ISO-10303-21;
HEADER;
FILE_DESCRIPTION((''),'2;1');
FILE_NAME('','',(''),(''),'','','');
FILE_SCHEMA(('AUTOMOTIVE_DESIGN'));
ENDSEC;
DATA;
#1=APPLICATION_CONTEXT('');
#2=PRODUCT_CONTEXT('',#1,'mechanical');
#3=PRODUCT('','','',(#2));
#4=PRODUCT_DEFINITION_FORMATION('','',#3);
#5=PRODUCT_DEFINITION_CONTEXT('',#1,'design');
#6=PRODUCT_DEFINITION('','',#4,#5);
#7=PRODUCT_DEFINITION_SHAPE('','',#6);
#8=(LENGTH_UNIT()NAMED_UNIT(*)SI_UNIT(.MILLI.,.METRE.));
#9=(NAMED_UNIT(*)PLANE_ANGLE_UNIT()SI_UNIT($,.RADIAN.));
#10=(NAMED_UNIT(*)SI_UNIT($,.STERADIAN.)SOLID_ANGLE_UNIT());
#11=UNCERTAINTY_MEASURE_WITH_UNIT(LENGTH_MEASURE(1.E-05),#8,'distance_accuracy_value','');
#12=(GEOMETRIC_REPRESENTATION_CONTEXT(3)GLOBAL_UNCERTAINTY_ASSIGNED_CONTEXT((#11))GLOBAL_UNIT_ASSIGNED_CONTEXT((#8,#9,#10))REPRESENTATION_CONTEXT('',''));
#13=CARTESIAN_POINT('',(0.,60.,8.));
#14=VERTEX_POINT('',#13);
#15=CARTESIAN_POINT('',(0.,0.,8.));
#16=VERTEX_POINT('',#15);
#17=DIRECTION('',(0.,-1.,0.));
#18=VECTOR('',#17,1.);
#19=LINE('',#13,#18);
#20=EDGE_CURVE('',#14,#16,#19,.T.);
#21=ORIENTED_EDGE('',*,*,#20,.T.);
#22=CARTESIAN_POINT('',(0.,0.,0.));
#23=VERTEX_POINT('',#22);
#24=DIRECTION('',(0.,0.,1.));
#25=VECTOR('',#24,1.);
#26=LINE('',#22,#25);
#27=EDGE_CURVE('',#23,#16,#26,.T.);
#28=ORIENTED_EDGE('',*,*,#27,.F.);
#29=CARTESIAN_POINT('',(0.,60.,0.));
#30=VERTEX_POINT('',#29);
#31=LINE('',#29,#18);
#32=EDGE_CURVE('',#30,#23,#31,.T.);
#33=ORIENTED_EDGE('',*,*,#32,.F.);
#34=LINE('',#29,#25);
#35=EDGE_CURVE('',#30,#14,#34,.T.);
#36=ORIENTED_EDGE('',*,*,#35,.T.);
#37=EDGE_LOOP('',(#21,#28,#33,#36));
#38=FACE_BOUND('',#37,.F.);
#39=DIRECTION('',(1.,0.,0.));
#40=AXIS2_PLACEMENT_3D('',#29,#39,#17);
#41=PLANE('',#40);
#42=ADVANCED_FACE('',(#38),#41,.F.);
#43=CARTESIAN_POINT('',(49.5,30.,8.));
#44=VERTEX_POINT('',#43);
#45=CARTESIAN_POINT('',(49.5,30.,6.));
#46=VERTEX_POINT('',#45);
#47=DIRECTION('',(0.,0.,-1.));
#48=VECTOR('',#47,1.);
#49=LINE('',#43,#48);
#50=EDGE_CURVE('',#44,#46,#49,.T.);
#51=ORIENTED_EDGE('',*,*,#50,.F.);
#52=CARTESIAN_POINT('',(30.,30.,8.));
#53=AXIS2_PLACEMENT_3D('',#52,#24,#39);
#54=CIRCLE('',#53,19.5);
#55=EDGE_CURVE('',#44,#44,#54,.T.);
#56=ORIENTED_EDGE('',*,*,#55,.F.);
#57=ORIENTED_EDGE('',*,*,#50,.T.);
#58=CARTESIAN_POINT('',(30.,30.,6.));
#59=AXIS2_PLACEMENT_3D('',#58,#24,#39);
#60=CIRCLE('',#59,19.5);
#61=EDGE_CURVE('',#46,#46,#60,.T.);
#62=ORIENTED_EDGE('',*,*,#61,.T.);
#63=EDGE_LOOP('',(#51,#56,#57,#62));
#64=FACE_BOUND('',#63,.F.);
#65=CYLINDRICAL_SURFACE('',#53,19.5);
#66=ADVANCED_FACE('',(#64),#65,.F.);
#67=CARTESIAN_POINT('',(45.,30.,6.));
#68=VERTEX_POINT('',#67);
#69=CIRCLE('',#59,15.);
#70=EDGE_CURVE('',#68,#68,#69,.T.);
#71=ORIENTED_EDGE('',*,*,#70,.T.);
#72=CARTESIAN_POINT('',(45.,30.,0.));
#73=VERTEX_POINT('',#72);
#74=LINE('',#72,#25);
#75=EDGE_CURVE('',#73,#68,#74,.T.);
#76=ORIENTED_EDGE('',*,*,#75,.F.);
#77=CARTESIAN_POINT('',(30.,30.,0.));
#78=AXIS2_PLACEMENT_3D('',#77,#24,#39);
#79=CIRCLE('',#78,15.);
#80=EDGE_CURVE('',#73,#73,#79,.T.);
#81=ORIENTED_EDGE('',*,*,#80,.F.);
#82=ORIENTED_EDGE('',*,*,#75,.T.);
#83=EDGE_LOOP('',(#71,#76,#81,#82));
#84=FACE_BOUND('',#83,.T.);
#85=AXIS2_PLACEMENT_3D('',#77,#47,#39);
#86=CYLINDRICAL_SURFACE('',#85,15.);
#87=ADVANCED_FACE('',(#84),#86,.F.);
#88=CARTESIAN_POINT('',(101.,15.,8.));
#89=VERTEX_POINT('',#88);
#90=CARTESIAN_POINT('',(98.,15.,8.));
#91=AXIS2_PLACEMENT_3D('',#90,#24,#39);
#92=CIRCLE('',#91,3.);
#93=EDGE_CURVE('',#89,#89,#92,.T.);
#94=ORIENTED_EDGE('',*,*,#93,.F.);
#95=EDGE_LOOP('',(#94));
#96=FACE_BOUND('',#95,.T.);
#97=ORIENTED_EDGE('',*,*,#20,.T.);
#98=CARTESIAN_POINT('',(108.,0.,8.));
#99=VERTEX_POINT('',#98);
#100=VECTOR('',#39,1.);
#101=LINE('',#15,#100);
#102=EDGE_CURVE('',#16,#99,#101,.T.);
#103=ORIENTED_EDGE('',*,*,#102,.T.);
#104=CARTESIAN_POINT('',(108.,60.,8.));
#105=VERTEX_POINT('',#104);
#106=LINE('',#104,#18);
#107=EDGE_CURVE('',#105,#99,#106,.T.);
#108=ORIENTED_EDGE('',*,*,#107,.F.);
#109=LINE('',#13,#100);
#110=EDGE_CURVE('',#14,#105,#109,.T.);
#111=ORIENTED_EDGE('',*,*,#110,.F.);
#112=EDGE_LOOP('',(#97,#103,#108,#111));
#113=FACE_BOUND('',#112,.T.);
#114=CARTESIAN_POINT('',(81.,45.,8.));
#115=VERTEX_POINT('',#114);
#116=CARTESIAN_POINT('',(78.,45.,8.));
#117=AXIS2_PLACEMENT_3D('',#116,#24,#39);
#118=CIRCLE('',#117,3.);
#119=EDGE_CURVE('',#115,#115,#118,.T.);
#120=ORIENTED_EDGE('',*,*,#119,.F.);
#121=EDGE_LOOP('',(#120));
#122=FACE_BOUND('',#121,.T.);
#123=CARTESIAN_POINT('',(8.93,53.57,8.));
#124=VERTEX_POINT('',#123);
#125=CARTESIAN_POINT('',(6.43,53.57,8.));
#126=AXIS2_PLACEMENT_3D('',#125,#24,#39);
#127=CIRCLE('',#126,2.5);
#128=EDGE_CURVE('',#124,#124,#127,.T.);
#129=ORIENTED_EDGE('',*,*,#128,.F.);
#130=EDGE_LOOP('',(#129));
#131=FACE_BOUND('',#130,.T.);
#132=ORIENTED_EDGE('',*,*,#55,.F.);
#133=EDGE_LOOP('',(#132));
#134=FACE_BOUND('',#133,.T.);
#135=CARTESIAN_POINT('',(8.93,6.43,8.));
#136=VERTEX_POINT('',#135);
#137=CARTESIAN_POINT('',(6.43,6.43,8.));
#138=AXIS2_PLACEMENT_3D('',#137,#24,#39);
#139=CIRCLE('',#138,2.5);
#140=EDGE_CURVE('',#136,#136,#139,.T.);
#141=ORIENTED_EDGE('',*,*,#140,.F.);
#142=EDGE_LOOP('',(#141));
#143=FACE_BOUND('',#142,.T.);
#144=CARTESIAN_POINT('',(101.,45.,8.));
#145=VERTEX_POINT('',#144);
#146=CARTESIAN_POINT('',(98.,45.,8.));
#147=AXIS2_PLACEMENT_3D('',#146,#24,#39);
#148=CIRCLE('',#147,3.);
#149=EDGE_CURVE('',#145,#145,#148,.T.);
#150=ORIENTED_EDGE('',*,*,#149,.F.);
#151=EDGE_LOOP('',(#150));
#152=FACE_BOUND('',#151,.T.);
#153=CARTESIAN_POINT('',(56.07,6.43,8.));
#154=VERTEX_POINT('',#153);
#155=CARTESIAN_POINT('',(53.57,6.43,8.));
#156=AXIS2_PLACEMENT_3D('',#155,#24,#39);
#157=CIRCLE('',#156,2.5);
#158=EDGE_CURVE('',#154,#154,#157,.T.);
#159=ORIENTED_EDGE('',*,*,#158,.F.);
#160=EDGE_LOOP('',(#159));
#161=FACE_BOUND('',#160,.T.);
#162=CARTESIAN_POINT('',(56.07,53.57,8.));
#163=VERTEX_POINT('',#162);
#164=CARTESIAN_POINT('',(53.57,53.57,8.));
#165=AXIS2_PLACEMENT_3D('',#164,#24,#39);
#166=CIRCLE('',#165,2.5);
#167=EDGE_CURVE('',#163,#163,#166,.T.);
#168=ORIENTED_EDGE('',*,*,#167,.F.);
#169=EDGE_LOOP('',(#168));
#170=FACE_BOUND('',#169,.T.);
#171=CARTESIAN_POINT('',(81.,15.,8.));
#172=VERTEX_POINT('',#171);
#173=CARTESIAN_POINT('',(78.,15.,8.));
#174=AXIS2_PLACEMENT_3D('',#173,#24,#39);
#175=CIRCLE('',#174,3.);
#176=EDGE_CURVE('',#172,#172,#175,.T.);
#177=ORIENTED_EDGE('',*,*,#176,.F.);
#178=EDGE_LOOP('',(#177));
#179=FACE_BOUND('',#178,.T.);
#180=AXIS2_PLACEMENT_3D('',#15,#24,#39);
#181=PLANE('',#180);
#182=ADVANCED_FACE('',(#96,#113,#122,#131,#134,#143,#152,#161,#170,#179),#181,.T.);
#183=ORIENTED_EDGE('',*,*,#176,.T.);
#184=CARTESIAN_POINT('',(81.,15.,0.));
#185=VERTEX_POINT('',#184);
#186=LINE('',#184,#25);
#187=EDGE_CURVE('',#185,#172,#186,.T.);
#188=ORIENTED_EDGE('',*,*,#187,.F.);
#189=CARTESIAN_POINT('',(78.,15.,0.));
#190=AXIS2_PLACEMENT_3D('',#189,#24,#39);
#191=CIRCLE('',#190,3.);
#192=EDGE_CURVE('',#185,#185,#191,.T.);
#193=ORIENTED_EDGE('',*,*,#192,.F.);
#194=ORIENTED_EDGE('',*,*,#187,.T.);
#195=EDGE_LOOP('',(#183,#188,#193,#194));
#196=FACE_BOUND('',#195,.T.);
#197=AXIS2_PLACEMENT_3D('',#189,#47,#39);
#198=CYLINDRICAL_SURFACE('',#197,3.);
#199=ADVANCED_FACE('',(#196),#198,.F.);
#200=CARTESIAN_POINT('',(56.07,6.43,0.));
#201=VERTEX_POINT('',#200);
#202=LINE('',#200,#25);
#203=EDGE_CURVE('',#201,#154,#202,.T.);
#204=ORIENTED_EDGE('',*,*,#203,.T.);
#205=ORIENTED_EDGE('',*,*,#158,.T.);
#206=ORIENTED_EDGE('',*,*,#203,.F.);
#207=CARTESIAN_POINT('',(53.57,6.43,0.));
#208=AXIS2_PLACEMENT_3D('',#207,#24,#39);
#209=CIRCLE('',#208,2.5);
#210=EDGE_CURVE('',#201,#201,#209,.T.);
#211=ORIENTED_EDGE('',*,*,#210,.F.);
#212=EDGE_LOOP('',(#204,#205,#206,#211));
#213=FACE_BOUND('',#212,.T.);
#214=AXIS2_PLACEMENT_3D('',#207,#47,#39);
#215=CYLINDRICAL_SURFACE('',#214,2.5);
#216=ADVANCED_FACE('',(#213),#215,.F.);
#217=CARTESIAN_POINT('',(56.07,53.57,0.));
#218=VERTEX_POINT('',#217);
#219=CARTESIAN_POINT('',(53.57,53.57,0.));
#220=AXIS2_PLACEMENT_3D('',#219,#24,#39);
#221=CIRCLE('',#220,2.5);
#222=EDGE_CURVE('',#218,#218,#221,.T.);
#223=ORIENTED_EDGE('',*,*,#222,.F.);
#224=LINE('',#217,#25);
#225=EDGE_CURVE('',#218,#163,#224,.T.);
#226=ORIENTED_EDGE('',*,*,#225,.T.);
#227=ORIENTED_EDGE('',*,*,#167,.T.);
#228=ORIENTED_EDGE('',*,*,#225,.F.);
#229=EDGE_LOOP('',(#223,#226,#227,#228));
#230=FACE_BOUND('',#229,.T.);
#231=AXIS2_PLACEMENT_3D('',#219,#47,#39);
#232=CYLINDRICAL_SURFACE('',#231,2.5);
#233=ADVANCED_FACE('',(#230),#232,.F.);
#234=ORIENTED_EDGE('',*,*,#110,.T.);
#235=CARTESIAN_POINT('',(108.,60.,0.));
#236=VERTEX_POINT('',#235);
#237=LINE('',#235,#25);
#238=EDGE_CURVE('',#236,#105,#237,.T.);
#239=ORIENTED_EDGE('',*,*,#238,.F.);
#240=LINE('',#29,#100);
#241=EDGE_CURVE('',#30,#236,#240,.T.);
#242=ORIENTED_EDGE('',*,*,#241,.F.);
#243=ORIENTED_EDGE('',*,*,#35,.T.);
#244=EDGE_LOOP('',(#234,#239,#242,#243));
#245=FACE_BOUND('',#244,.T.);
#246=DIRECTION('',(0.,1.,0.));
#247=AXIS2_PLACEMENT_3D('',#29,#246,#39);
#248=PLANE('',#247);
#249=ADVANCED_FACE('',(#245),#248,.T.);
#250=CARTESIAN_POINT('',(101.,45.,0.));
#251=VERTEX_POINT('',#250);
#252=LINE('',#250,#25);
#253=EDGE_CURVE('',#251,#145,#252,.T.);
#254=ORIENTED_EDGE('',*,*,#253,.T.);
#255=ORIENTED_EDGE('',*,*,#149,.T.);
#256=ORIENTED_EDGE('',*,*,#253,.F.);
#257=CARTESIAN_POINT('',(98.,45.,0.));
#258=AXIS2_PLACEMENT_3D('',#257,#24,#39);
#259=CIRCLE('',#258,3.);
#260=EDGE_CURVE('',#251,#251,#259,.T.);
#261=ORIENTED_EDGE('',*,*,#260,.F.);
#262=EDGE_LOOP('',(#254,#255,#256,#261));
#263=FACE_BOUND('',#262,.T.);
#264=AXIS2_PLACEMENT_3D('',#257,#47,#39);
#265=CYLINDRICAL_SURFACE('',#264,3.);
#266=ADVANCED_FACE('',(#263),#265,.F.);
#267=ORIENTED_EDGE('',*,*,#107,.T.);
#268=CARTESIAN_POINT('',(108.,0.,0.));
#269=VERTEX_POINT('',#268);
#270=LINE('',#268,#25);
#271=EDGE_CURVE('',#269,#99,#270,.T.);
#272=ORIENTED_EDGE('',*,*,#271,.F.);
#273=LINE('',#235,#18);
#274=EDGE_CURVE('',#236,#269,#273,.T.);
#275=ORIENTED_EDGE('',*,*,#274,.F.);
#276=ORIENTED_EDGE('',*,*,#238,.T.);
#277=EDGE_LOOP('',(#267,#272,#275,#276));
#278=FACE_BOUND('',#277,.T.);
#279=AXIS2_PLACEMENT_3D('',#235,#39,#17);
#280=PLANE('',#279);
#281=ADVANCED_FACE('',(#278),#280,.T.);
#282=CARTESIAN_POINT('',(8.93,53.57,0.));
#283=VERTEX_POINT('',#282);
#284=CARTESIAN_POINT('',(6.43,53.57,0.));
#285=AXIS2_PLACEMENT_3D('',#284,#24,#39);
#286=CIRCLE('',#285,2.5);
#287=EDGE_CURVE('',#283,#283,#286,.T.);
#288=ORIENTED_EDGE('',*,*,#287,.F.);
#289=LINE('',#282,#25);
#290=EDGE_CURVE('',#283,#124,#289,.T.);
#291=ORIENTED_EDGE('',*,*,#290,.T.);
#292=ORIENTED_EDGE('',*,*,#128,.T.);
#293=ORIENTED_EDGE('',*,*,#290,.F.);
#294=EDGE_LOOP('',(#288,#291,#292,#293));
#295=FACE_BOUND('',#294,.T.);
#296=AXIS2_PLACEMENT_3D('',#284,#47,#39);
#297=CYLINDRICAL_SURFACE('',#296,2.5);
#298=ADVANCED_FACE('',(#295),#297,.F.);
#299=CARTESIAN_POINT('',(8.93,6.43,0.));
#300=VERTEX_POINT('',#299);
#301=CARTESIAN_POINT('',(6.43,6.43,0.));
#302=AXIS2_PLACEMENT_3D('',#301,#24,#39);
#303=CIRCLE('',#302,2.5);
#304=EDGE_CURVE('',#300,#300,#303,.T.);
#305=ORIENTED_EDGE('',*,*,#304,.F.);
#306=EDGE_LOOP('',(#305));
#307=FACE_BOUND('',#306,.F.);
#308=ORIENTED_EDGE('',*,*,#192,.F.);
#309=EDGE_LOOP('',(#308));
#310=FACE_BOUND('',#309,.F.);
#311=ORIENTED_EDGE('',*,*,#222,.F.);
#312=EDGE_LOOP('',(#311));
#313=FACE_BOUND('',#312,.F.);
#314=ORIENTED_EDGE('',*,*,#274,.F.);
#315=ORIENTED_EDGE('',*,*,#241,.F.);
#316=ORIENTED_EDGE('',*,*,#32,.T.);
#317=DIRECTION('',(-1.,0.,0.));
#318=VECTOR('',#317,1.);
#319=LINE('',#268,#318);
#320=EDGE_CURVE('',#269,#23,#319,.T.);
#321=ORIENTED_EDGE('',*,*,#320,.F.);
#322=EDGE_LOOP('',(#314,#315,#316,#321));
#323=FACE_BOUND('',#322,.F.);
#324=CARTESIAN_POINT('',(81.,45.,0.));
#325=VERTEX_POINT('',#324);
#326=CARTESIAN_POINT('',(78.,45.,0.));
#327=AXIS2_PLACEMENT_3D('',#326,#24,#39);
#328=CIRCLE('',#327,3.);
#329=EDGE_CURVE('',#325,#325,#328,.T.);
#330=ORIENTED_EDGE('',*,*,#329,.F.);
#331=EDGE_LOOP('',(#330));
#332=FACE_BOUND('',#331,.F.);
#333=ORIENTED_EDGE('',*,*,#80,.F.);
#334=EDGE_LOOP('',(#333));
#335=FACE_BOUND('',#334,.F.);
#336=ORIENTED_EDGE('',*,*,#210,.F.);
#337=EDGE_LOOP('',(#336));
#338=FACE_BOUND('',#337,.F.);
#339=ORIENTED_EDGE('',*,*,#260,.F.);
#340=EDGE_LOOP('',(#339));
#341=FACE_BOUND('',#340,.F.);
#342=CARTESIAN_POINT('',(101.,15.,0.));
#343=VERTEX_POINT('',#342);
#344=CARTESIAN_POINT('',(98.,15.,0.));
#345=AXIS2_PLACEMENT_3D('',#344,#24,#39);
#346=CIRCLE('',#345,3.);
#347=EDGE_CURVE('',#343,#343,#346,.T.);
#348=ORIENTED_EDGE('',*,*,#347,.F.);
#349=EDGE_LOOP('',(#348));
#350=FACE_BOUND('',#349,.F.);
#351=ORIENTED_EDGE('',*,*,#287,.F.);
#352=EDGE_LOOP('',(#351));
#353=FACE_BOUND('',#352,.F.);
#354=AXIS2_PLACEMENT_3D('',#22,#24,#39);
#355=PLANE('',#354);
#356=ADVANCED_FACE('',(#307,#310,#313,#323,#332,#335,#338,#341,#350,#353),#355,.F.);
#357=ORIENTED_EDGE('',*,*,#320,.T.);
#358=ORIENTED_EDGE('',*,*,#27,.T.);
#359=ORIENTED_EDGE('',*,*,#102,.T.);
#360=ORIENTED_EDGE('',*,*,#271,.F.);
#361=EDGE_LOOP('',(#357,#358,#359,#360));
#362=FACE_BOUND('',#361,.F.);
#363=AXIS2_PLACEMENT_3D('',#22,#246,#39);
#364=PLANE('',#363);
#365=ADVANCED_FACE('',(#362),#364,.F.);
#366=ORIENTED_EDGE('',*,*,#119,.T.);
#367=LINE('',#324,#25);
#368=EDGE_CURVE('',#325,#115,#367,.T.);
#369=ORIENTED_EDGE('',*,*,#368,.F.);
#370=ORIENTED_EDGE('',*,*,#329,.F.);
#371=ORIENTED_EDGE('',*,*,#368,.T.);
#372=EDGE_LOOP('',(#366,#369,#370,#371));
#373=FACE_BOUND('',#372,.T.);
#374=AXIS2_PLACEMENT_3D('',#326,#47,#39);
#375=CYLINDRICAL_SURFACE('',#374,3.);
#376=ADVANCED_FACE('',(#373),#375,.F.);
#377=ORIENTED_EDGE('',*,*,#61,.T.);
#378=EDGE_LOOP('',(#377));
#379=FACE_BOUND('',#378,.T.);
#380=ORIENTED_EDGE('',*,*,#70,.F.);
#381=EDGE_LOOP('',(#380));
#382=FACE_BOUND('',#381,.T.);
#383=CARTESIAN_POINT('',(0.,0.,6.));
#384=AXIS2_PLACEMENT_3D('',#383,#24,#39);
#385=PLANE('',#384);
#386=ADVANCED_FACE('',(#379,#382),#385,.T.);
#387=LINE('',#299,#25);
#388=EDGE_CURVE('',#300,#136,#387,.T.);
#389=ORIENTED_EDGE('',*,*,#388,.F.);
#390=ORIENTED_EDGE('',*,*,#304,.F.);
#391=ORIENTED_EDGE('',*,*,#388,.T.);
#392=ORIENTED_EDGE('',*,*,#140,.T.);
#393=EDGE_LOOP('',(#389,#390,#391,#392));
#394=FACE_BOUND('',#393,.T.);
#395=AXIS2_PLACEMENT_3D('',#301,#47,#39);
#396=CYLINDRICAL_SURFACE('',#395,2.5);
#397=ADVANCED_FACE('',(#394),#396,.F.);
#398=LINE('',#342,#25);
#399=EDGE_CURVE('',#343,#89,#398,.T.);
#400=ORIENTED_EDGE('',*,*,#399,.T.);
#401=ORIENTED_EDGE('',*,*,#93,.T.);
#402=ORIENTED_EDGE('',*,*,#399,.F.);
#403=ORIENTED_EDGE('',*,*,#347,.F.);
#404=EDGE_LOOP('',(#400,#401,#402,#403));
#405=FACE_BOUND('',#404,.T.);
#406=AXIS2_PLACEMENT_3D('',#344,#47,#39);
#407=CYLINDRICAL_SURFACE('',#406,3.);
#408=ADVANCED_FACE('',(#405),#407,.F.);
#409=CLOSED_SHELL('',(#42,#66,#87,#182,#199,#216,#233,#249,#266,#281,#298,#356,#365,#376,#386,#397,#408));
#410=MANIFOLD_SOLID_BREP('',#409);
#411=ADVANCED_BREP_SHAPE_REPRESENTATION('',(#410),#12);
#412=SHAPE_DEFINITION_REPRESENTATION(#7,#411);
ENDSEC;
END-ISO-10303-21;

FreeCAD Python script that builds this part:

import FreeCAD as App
import Part
import Sketcher
from FreeCAD import Vector
Q = App.Units.Quantity

doc = App.newDocument("Part")
params = doc.addObject("Spreadsheet::Sheet", "Params")
for row, (alias, value) in enumerate([
    ("sketch1_diameter", "30 mm"),
    ("sketch1_width", "108 mm"),
    ("sketch1_diameter2", "5 mm"),
    ("sketch1_diameter3", "6 mm"),
    ("pad1_length", "8 mm"),
    ("sketch2_diameter", "39 mm"),
    ("sketch2_diameter2", "30 mm"),
    ("pocket1_length", "2 mm"),
], start=1):
    params.set(f"A{row}", alias)
    params.set(f"B{row}", "=" + value)
    params.setAlias(f"B{row}", alias)

body = doc.addObject("PartDesign::Body", "Body")

# Sketch on XY plane
sketch1 = body.newObject("Sketcher::SketchObject", "Sketch")
sketch1.AttachmentSupport = (doc.getObject("XY_Plane"), [""])
sketch1.MapMode = "FlatFace"
sketch1.addGeometry([
    Part.LineSegment(Vector(108, 60, 0), Vector(0, 60, 0)),  # 0
    Part.LineSegment(Vector(0, 60, 0), Vector(0, 0, 0)),  # 1
    Part.LineSegment(Vector(0, 0, 0), Vector(108, 0, 0)),  # 2
    Part.LineSegment(Vector(108, 0, 0), Vector(108, 60, 0)),  # 3
    Part.Circle(Vector(6.4, 6.4, 0), Vector(0, 0, 1), 2.5),  # 4
    Part.Circle(Vector(53.6, 6.4, 0), Vector(0, 0, 1), 2.5),  # 5
    Part.Circle(Vector(78, 15, 0), Vector(0, 0, 1), 3),  # 6
    Part.Circle(Vector(98, 15, 0), Vector(0, 0, 1), 3),  # 7
    Part.Circle(Vector(30, 30, 0), Vector(0, 0, 1), 15),  # 8
    Part.Circle(Vector(6.4, 53.6, 0), Vector(0, 0, 1), 2.5),  # 9
    Part.Circle(Vector(53.6, 53.6, 0), Vector(0, 0, 1), 2.5),  # 10
    Part.Circle(Vector(78, 45, 0), Vector(0, 0, 1), 3),  # 11
    Part.Circle(Vector(98, 45, 0), Vector(0, 0, 1), 3),  # 12
], False)
sketch1.addConstraint([
    Sketcher.Constraint("Coincident", 0, 2, 1, 1),
    Sketcher.Constraint("Coincident", 1, 2, 2, 1),
    Sketcher.Constraint("Coincident", 2, 2, 3, 1),
    Sketcher.Constraint("Coincident", 3, 2, 0, 1),
    Sketcher.Constraint("Horizontal", 0),
    Sketcher.Constraint("Vertical", 1),
    Sketcher.Constraint("Horizontal", 2),
    Sketcher.Constraint("Vertical", 3),
    Sketcher.Constraint("Coincident", 1, 2, -1, 1),
    Sketcher.Constraint("Equal", 4, 5),
    Sketcher.Constraint("Equal", 6, 7),
    Sketcher.Constraint("Equal", 5, 9),
    Sketcher.Constraint("Equal", 9, 10),
    Sketcher.Constraint("Equal", 7, 11),
    Sketcher.Constraint("Equal", 11, 12),
    Sketcher.Constraint("Horizontal", 4, 3, 5, 3),
    Sketcher.Constraint("Horizontal", 6, 3, 7, 3),
    Sketcher.Constraint("Horizontal", 9, 3, 10, 3),
    Sketcher.Constraint("Horizontal", 11, 3, 12, 3),
    Sketcher.Constraint("Vertical", 4, 3, 9, 3),
    Sketcher.Constraint("Vertical", 5, 3, 10, 3),
    Sketcher.Constraint("Vertical", 6, 3, 11, 3),
    Sketcher.Constraint("Vertical", 7, 3, 12, 3),
    Sketcher.Constraint("Diameter", 8, Q("30 mm")),
    Sketcher.Constraint("DistanceX", 0, 2, 0, 1, Q("108 mm")),
    Sketcher.Constraint("Diameter", 4, Q("5 mm")),
    Sketcher.Constraint("Diameter", 6, Q("6 mm")),
    Sketcher.Constraint("DistanceX", -1, 1, 8, 3, Q("30 mm")),
    Sketcher.Constraint("DistanceY", -1, 1, 8, 3, Q("30 mm")),
    Sketcher.Constraint("DistanceY", 6, 3, 11, 3, Q("30 mm")),
    Sketcher.Constraint("DistanceY", 8, 3, 0, 2, Q("30 mm")),
    Sketcher.Constraint("DistanceX", 7, 3, 2, 2, Q("10 mm")),
    Sketcher.Constraint("DistanceX", 6, 3, 2, 2, Q("30 mm")),
    Sketcher.Constraint("DistanceX", -1, 1, 4, 3, Q("6.43 mm")),
    Sketcher.Constraint("DistanceY", -1, 1, 4, 3, Q("6.43 mm")),
    Sketcher.Constraint("DistanceX", 4, 3, 5, 3, Q("47.14 mm")),
    Sketcher.Constraint("DistanceY", 4, 3, 9, 3, Q("47.14 mm")),
    Sketcher.Constraint("DistanceY", -1, 1, 6, 3, Q("15 mm")),
])
sketch1.setExpression("Constraints[23]", "Params.sketch1_diameter")
sketch1.setExpression("Constraints[24]", "Params.sketch1_width")
sketch1.setExpression("Constraints[25]", "Params.sketch1_diameter2")
sketch1.setExpression("Constraints[26]", "Params.sketch1_diameter3")
pad1 = body.newObject("PartDesign::Pad", "Pad")
pad1.Profile = sketch1
pad1.setExpression("Length", "Params.pad1_length")

# Sketch on XY plane
sketch2 = body.newObject("Sketcher::SketchObject", "Sketch001")
sketch2.AttachmentSupport = (doc.getObject("XY_Plane"), [""])
sketch2.MapMode = "FlatFace"
sketch2.AttachmentOffset = App.Placement(Vector(0, 0, 8), App.Rotation())
sketch2.addGeometry([
    Part.Circle(Vector(30, 30, 0), Vector(0, 0, 1), 20),
    Part.Circle(Vector(30, 30, 0), Vector(0, 0, 1), 15),
], False)
sketch2.addConstraint([
    Sketcher.Constraint("Coincident", 1, 3, 0, 3),
    Sketcher.Constraint("Diameter", 0, Q("39 mm")),
    Sketcher.Constraint("Diameter", 1, Q("30 mm")),
    Sketcher.Constraint("DistanceX", -1, 1, 0, 3, Q("30 mm")),
    Sketcher.Constraint("DistanceY", -1, 1, 0, 3, Q("30 mm")),
])
sketch2.setExpression("Constraints[1]", "Params.sketch2_diameter")
sketch2.setExpression("Constraints[2]", "Params.sketch2_diameter2")
pocket1 = body.newObject("PartDesign::Pocket", "Pocket")
pocket1.Profile = sketch2
pocket1.setExpression("Length", "Params.pocket1_length")

doc.recompute()
